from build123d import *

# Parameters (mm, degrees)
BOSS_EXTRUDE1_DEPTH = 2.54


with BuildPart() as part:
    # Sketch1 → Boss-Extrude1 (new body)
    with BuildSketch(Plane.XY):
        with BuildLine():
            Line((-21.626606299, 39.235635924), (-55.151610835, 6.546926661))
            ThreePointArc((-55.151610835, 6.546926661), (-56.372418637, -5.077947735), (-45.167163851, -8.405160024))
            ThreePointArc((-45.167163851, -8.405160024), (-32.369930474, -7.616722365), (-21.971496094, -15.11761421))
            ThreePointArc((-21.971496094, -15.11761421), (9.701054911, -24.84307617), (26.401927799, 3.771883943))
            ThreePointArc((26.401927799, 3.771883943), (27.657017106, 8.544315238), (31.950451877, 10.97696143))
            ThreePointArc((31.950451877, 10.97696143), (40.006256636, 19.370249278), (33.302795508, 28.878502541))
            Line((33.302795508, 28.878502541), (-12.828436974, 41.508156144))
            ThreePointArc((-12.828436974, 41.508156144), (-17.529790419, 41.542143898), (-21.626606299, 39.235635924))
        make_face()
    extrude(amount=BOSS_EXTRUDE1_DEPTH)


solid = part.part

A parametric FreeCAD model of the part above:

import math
import FreeCAD as App
import Part
import Sketcher
from FreeCAD import Vector
Q = App.Units.Quantity

doc = App.newDocument("Part")
body = doc.addObject("PartDesign::Body", "Body")

# Sketch on XY plane
sketch1 = body.newObject("Sketcher::SketchObject", "Sketch")
sketch1.AttachmentSupport = (doc.getObject("XY_Plane"), [""])
sketch1.MapMode = "FlatFace"
sketch1.addGeometry([
    Part.LineSegment(Vector(-22, 39, 0), Vector(-55, 7, 0)),  # 0
    Part.ArcOfCircle(Part.Circle(Vector(-49, 0, 0), Vector(0, 0, 1), 9), math.radians(134), math.radians(293)),  # 1
    Part.ArcOfCircle(Part.Circle(Vector(-38, -26, 0), Vector(0, 0, 1), 19), math.radians(35), math.radians(113)),  # 2
    Part.ArcOfCircle(Part.Circle(Vector(0, 0, 0), Vector(0, 0, 1), 27), math.radians(-145), math.radians(8)),  # 3
    Part.ArcOfCircle(Part.Circle(Vector(33, 5, 0), Vector(0, 0, 1), 6), math.radians(97), math.radians(188)),  # 4
    Part.ArcOfCircle(Part.Circle(Vector(31, 20, 0), Vector(0, 0, 1), 9), math.radians(-83), math.radians(75)),  # 5
    Part.LineSegment(Vector(33, 29, 0), Vector(-13, 42, 0)),  # 6
    Part.ArcOfCircle(Part.Circle(Vector(-15, 33, 0), Vector(0, 0, 1), 9), math.radians(75), math.radians(134)),  # 7
], False)
sketch1.addConstraint([
    Sketcher.Constraint("Tangent", 0, 2, 1, 1),
    Sketcher.Constraint("Tangent", 1, 2, 2, 2),
    Sketcher.Constraint("Tangent", 2, 1, 3, 1),
    Sketcher.Constraint("Tangent", 3, 2, 4, 2),
    Sketcher.Constraint("Tangent", 4, 1, 5, 1),
    Sketcher.Constraint("Tangent", 5, 2, 6, 1),
    Sketcher.Constraint("Tangent", 6, 2, 7, 1),
    Sketcher.Constraint("Tangent", 7, 2, 0, 1),
    Sketcher.Constraint("Coincident", 3, 3, -1, 1),
    Sketcher.Constraint("Equal", 1, 5),
    Sketcher.Constraint("Equal", 5, 7),
    Sketcher.Constraint("PointOnObject", 1, 3, -1),
    Sketcher.Constraint("Radius", 1, Q("0.36 in")),
    Sketcher.Constraint("Radius", 2, Q("0.75 in")),
    Sketcher.Constraint("Radius", 3, Q("1.05 in")),
    Sketcher.Constraint("Radius", 4, Q("0.25 in")),
    Sketcher.Constraint("DistanceX", 1, 3, -1, 1, Q("1.92 in")),
    Sketcher.Constraint("Distance", 0, Q("46.8239 mm")),
    Sketcher.Constraint("DistanceX", -1, 1, 4, 3, Q("32.688101 mm")),
    Sketcher.Constraint("DistanceY", 5, 3, 6, 2, Q("21.4491 mm")),
    Sketcher.Constraint("Distance", 6, Q("47.828849 mm")),
])
pad1 = body.newObject("PartDesign::Pad", "Pad")
pad1.Profile = sketch1
pad1.Length = Q("0.1 in")

doc.recompute()
